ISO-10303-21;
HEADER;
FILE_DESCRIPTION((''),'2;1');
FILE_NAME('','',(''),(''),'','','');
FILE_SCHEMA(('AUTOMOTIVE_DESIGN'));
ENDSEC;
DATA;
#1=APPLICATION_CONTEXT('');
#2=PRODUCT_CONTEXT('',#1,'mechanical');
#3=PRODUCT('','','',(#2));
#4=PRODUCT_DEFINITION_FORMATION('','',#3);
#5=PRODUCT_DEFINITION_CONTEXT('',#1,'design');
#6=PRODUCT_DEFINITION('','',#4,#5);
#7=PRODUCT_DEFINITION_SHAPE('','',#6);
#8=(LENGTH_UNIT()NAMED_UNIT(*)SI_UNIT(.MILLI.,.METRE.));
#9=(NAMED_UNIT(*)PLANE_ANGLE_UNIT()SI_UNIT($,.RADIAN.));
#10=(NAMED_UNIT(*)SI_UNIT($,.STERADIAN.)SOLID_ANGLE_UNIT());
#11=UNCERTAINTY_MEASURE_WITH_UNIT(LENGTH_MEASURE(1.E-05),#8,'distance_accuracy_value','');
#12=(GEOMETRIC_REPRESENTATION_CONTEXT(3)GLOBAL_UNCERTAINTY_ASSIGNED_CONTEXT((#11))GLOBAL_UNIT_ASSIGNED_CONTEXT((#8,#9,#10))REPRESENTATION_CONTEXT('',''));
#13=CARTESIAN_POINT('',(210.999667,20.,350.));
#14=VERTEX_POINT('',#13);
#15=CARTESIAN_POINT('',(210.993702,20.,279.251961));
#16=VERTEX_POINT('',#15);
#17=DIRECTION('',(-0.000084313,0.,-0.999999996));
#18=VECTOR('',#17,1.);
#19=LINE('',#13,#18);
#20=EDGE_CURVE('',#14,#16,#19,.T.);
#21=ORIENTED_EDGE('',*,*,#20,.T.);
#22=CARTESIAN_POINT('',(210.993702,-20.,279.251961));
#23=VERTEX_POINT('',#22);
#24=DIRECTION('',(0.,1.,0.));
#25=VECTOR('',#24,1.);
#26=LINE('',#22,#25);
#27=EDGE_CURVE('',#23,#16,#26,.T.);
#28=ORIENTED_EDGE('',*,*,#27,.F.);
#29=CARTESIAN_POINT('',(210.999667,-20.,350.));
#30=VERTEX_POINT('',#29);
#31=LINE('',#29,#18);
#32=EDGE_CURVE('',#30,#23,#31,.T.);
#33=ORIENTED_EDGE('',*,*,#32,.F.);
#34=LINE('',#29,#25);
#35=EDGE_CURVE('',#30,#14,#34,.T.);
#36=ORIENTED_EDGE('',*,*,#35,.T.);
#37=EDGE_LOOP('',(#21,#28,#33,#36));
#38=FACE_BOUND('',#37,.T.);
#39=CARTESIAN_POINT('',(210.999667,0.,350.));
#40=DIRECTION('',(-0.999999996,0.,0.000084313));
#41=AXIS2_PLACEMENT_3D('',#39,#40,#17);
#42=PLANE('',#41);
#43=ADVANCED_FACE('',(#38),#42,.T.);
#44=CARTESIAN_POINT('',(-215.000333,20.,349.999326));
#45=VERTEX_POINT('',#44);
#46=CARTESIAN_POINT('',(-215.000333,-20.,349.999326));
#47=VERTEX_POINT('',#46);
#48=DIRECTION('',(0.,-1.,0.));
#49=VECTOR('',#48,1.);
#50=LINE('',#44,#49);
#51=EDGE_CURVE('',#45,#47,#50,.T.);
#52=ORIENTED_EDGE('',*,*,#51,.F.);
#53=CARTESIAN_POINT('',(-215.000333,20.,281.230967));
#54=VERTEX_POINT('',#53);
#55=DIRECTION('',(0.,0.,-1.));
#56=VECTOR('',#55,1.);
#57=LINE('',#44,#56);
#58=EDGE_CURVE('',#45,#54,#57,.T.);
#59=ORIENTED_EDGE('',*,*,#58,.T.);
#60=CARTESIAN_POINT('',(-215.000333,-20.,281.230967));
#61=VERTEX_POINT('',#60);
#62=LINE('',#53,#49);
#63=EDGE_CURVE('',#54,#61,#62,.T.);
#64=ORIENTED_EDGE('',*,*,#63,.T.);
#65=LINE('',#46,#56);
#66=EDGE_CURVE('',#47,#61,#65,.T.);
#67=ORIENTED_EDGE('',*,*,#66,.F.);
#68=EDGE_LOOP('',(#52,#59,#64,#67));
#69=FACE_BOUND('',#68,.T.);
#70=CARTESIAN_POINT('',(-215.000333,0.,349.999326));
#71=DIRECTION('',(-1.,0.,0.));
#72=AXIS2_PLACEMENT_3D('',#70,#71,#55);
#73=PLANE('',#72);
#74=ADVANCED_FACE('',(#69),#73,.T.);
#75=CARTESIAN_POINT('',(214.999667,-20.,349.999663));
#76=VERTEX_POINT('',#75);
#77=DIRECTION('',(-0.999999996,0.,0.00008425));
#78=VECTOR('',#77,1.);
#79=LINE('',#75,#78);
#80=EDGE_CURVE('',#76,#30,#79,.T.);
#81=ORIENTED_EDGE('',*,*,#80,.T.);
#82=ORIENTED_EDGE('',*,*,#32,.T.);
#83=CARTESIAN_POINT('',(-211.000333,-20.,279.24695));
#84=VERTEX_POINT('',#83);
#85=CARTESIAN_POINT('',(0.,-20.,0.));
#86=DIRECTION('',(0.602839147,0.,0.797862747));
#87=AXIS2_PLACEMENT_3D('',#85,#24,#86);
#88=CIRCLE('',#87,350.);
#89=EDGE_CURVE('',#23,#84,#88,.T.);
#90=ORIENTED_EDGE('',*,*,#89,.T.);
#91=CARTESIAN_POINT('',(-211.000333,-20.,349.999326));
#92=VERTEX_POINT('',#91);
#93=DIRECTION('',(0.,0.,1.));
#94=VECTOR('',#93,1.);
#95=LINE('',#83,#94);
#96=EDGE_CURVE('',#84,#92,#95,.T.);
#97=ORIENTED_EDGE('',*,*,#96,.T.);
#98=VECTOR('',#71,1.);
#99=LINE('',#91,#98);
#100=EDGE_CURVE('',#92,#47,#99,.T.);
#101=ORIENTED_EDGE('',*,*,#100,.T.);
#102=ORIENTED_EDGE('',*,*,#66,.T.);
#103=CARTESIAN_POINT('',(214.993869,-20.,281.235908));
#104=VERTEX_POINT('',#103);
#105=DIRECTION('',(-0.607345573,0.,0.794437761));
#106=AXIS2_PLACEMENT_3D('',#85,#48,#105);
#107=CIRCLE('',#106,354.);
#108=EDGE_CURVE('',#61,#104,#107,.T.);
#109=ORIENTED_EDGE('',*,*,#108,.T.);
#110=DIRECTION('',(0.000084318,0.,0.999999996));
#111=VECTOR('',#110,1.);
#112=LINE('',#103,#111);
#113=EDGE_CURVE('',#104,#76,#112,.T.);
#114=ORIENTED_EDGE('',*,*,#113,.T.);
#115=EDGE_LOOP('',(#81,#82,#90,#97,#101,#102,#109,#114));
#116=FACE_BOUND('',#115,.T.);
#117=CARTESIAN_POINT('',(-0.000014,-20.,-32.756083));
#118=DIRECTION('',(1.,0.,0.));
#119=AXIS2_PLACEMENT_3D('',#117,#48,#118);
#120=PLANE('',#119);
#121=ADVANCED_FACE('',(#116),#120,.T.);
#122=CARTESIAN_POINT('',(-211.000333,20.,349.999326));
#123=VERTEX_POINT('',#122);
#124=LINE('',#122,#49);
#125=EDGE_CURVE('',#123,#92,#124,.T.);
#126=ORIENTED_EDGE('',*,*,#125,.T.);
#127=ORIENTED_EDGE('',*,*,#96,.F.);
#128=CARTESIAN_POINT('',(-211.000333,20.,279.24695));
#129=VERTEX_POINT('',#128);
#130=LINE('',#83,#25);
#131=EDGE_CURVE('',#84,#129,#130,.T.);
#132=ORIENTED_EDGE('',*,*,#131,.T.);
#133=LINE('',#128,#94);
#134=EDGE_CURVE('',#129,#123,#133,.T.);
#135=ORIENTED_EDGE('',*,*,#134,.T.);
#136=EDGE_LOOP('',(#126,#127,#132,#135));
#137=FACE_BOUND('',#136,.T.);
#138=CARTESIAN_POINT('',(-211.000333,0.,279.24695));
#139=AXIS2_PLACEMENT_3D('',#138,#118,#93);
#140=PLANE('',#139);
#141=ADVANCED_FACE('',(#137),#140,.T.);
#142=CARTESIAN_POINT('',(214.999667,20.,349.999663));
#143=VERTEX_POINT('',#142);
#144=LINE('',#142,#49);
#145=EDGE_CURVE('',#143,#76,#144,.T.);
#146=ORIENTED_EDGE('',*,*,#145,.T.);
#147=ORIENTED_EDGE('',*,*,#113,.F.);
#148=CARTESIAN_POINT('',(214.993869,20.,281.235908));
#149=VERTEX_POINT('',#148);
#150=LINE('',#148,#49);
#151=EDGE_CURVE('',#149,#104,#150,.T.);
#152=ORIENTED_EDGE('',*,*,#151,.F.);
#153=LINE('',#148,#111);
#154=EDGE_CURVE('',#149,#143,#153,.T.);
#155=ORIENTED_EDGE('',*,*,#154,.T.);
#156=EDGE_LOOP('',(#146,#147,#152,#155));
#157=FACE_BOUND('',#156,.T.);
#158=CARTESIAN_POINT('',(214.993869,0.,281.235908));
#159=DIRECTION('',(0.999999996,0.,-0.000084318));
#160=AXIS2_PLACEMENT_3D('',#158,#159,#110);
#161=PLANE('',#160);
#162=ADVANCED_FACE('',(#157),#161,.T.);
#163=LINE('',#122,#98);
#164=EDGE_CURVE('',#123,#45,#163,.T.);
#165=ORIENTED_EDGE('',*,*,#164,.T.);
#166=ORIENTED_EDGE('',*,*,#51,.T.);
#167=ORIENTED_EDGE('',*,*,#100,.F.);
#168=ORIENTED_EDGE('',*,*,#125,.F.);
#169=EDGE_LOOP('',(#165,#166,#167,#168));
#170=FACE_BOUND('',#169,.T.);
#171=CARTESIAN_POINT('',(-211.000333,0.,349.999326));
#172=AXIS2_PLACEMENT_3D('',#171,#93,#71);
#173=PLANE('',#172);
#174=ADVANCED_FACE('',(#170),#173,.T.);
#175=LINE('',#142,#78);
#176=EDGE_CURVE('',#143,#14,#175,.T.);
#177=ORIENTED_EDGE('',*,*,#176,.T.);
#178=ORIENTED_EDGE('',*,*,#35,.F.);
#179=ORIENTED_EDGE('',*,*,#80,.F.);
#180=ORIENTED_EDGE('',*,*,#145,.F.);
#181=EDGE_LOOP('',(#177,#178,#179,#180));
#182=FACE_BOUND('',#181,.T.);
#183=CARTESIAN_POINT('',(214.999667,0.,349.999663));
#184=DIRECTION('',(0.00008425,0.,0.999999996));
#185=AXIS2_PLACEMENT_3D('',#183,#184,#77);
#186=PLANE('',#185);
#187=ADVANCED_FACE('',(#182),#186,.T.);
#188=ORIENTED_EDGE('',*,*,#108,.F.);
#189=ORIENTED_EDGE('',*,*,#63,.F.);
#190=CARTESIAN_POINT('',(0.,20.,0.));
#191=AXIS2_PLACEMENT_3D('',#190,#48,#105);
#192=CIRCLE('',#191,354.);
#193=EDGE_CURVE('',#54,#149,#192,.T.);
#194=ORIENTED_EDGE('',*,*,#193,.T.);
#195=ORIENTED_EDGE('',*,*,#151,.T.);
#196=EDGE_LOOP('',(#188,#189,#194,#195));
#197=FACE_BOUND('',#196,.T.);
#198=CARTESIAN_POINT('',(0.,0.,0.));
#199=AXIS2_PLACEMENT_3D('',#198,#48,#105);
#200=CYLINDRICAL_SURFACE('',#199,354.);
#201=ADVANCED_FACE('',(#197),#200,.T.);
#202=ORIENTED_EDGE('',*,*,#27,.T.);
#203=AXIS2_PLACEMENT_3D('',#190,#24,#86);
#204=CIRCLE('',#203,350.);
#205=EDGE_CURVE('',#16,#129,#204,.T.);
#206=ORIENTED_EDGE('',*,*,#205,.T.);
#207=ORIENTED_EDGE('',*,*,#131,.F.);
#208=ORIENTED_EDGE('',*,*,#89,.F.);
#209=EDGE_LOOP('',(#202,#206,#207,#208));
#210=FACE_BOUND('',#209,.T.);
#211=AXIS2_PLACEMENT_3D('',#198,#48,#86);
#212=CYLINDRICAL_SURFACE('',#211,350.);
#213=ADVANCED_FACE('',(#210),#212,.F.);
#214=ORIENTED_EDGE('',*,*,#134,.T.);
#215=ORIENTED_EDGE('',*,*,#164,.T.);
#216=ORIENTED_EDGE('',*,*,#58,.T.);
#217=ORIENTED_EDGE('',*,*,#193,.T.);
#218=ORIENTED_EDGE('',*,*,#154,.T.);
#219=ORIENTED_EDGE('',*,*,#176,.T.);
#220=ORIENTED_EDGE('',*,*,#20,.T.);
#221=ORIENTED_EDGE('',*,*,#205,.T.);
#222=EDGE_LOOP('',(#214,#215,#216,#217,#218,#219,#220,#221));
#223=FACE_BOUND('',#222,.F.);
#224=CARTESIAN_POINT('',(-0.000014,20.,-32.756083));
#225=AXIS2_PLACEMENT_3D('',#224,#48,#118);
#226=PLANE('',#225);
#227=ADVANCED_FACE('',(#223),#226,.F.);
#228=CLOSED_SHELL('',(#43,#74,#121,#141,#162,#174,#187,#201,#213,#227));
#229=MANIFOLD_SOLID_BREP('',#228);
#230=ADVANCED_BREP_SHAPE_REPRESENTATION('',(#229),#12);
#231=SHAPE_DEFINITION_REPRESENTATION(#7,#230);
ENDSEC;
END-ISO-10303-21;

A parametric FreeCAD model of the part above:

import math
import FreeCAD as App
import Part
import Sketcher
from FreeCAD import Vector
Q = App.Units.Quantity

doc = App.newDocument("Part")
params = doc.addObject("Spreadsheet::Sheet", "Params")
for row, (alias, value) in enumerate([
    ("sketch1_radius", "354 mm"),
    ("sketch1_radius2", "350 mm"),
    ("sketch1_width", "4 mm"),
    ("sketch1_length", "4 mm"),
    ("pad1_length", "40 mm"),
], start=1):
    params.set(f"A{row}", alias)
    params.set(f"B{row}", "=" + value)
    params.setAlias(f"B{row}", alias)

body = doc.addObject("PartDesign::Body", "Body")

sketch1 = doc.addObject("Sketcher::SketchObject", "Sketch")
body.addObject(sketch1)
sketch1.AttachmentSupport = (doc.XZ_Plane, [""])
sketch1.MapMode = "FlatFace"
sketch1.addGeometry([
    Part.LineSegment(Vector(-211.000333, 279.24695, 0), Vector(-211.000333, 349.999326, 0)),
    Part.LineSegment(Vector(-211.000333, 349.999326, 0), Vector(-215.000333, 349.999326, 0)),
    Part.LineSegment(Vector(-215.000333, 349.999326, 0), Vector(-215.000333, 281.230967, 0)),
    Part.ArcOfCircle(Part.Circle(Vector(0, 0, 0), Vector(0, 0, 1), 354), math.radians(127.397817), math.radians(412.6035)),
    Part.LineSegment(Vector(214.993869, 281.235908, 0), Vector(214.999667, 349.999663, 0)),
    Part.LineSegment(Vector(214.999667, 349.999663, 0), Vector(210.999667, 350, 0)),
    Part.LineSegment(Vector(210.999667, 350, 0), Vector(210.993702, 279.251961, 0)),
    Part.ArcOfCircle(Part.Circle(Vector(0, 0, 0), Vector(0, 0, 1), 350), math.radians(127.074869), math.radians(412.926492)),
], False)
sketch1.addConstraint([
    Sketcher.Constraint("Coincident", 0, 2, 1, 1),
    Sketcher.Constraint("Coincident", 1, 2, 2, 1),
    Sketcher.Constraint("Coincident", 2, 2, 3, 1),
    Sketcher.Constraint("Coincident", 3, 2, 4, 1),
    Sketcher.Constraint("Coincident", 4, 2, 5, 1),
    Sketcher.Constraint("Coincident", 5, 2, 6, 1),
    Sketcher.Constraint("Coincident", 6, 2, 7, 2),
    Sketcher.Constraint("Coincident", 7, 1, 0, 1),
    Sketcher.Constraint("Vertical", 0),
    Sketcher.Constraint("Horizontal", 1),
    Sketcher.Constraint("Vertical", 2),
    Sketcher.Constraint("Coincident", 3, 3, -1, 1),
    Sketcher.Constraint("Coincident", 7, 3, -1, 1),
    Sketcher.Constraint("Perpendicular", 4, 5),
    Sketcher.Constraint("Perpendicular", 5, 6),
    Sketcher.Constraint("Radius", 3, Q("354 mm")),
    Sketcher.Constraint("Radius", 7, Q("350 mm")),
    Sketcher.Constraint("DistanceX", 1, 2, 1, 1, Q("4 mm")),
    Sketcher.Constraint("Distance", 5, Q("4 mm")),
    Sketcher.Constraint("DistanceY", -1, 1, 5, 2, Q("350 mm")),
    Sketcher.Constraint("DistanceX", 0, 2, 4, 2, Q("426 mm")),
    Sketcher.Constraint("DistanceY", 2, 2, 2, 1, Q("68.768359 mm")),
    Sketcher.Constraint("DistanceX", 7, 3, 6, 2, Q("210.993702 mm")),
    Sketcher.Constraint("Distance", 4, Q("68.763755 mm")),
])
sketch1.setExpression("Constraints[15]", "Params.sketch1_radius")
sketch1.setExpression("Constraints[16]", "Params.sketch1_radius2")
sketch1.setExpression("Constraints[17]", "Params.sketch1_width")
sketch1.setExpression("Constraints[18]", "Params.sketch1_length")
pad1 = doc.addObject("PartDesign::Pad", "Pad")
body.addObject(pad1)
pad1.Profile = sketch1
pad1.setExpression("Length", "Params.pad1_length")
pad1.Midplane = True

doc.recompute()
